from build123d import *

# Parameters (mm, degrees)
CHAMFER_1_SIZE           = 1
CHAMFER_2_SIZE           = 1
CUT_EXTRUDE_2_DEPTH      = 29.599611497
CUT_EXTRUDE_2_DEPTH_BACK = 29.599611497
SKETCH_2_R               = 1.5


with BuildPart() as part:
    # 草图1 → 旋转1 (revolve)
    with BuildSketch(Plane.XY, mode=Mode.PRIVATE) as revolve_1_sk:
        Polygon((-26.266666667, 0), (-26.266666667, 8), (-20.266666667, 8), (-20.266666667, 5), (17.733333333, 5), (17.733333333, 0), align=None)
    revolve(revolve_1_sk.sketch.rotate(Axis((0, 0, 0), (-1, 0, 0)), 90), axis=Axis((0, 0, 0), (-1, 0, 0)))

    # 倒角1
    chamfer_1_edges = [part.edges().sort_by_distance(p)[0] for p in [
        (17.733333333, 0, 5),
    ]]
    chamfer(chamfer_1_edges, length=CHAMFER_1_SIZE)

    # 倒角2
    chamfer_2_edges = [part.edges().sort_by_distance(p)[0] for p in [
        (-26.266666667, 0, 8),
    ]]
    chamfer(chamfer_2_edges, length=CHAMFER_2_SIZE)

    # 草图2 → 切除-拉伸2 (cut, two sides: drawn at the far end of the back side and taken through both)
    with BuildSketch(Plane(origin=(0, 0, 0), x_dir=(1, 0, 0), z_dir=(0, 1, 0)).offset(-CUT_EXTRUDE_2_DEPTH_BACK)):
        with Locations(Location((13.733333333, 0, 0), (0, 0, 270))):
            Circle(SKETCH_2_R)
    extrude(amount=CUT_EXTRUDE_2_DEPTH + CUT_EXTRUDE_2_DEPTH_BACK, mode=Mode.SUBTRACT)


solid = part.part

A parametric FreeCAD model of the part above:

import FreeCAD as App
import Part
import Sketcher
from FreeCAD import Vector
Q = App.Units.Quantity


def edges_at(feature, points):
    """Names of the edges that pass closest to the given points."""
    edges = feature.Shape.Edges
    near = lambda p: min(range(len(edges)), key=lambda i: edges[i].distToShape(Part.Vertex(*p))[0])
    return sorted({f"Edge{near(p) + 1}" for p in points})


def add_polygon(sketch, points):
    """Adds a closed chain of lines whose ends are joined by coincident constraints."""
    first, n = sketch.GeometryCount, len(points)
    for a, b in zip(points, points[1:] + points[:1]):
        sketch.addGeometry(Part.LineSegment(App.Vector(*a, 0), App.Vector(*b, 0)), False)
    for i in range(n):
        sketch.addConstraint(Sketcher.Constraint("Coincident", first + i, 2, first + (i + 1) % n, 1))

doc = App.newDocument("Part")
params = doc.addObject("Spreadsheet::Sheet", "Params")
for row, (alias, value) in enumerate([
    ("sketch1_width", "44 mm"),
    ("sketch1_width2", "38 mm"),
    ("sketch1_height", "8 mm"),
    ("sketch1_height2", "5 mm"),
    ("revolution_angle", "360 deg"),
    ("chamfer_size", "1 mm"),
    ("chamfer2_size", "1 mm"),
    ("sketch2_diameter", "3 mm"),
], start=1):
    params.set(f"A{row}", alias)
    params.set(f"B{row}", "=" + value)
    params.setAlias(f"B{row}", alias)

body = doc.addObject("PartDesign::Body", "Body")

sketch1 = doc.addObject("Sketcher::SketchObject", "Sketch")
body.addObject(sketch1)
sketch1.AttachmentSupport = (doc.XY_Plane, [""])
sketch1.MapMode = "FlatFace"
add_polygon(sketch1, [(-26.266667, 8), (-26.266667, 0), (17.733333, 0), (17.733333, 5), (-20.266667, 5), (-20.266667, 8)])
sketch1.addConstraint([
    Sketcher.Constraint("Vertical", 0),
    Sketcher.Constraint("Horizontal", 1),
    Sketcher.Constraint("Vertical", 2),
    Sketcher.Constraint("Horizontal", 3),
    Sketcher.Constraint("Vertical", 4),
    Sketcher.Constraint("Horizontal", 5),
    Sketcher.Constraint("PointOnObject", 0, 2, -1),
    Sketcher.Constraint("DistanceX", 1, 1, 1, 2, Q("44 mm")),
    Sketcher.Constraint("DistanceX", 3, 2, 3, 1, Q("38 mm")),
    Sketcher.Constraint("DistanceY", 0, 2, 0, 1, Q("8 mm")),
    Sketcher.Constraint("DistanceY", 2, 1, 2, 2, Q("5 mm")),
    Sketcher.Constraint("DistanceX", 0, 2, -1, 1, Q("26.266667 mm")),
])
sketch1.setExpression("Constraints[13]", "Params.sketch1_width")
sketch1.setExpression("Constraints[14]", "Params.sketch1_width2")
sketch1.setExpression("Constraints[15]", "Params.sketch1_height")
sketch1.setExpression("Constraints[16]", "Params.sketch1_height2")
revolution = doc.addObject("PartDesign::Revolution", "Revolution")
body.addObject(revolution)
revolution.Profile = sketch1
revolution.ReferenceAxis = (sketch1, ["H_Axis"])
revolution.setExpression("Angle", "Params.revolution_angle")
doc.recompute()

chamfer = doc.addObject("PartDesign::Chamfer", "Chamfer")
body.addObject(chamfer)
chamfer.Base = (revolution, edges_at(revolution, [(17.733, 0, 5)]))
chamfer.setExpression("Size", "Params.chamfer_size")
doc.recompute()

chamfer2 = doc.addObject("PartDesign::Chamfer", "Chamfer001")
body.addObject(chamfer2)
chamfer2.Base = (chamfer, edges_at(chamfer, [(-26.267, 0, 8)]))
chamfer2.setExpression("Size", "Params.chamfer2_size")

sketch2 = doc.addObject("Sketcher::SketchObject", "Sketch001")
body.addObject(sketch2)
sketch2.AttachmentSupport = (doc.XZ_Plane, [""])
sketch2.MapMode = "FlatFace"
sketch2.addGeometry(Part.Circle(Vector(13.733333, 0, 0), Vector(0, 0, 1), 1.5), False)
sketch2.addConstraint([
    Sketcher.Constraint("PointOnObject", 0, 3, -1),
    Sketcher.Constraint("Diameter", 0, Q("3 mm")),
    Sketcher.Constraint("DistanceX", -1, 1, 0, 3, Q("13.733333 mm")),
])
sketch2.setExpression("Constraints[1]", "Params.sketch2_diameter")
pocket1 = doc.addObject("PartDesign::Pocket", "Pocket")
body.addObject(pocket1)
pocket1.Profile = sketch2
pocket1.Type = "ThroughAll"
pocket1.Midplane = True

doc.recompute()
